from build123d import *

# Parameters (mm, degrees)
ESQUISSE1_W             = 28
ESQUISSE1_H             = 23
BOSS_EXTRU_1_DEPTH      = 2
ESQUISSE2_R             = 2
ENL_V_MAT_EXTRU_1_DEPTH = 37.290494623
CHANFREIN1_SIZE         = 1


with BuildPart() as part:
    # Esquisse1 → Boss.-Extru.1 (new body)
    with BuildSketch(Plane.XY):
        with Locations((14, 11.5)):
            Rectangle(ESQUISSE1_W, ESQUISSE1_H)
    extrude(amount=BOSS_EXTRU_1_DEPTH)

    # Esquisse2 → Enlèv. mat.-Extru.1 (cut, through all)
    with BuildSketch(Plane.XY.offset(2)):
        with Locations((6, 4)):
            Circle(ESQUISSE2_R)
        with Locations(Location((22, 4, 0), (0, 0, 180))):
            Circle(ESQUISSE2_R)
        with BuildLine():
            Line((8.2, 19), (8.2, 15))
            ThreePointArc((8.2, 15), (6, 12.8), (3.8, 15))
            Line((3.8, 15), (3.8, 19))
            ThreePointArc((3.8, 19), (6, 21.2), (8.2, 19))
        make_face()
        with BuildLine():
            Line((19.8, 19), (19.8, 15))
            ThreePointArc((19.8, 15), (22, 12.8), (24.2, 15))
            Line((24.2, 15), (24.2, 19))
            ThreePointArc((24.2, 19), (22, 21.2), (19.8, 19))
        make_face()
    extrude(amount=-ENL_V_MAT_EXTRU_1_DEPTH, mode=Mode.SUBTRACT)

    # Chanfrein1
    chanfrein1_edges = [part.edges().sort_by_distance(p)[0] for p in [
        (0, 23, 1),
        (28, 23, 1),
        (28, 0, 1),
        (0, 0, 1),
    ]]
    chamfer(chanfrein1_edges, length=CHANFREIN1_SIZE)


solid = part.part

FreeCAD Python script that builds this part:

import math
import FreeCAD as App
import Part
import Sketcher


def edges_at(feature, points):
    """Names of the edges that pass closest to the given points."""
    edges = feature.Shape.Edges
    near = lambda p: min(range(len(edges)), key=lambda i: edges[i].distToShape(Part.Vertex(*p))[0])
    return sorted({f"Edge{near(p) + 1}" for p in points})


def add_polygon(sketch, points):
    """Adds a closed chain of lines whose ends are joined by coincident constraints."""
    first, n = sketch.GeometryCount, len(points)
    for a, b in zip(points, points[1:] + points[:1]):
        sketch.addGeometry(Part.LineSegment(App.Vector(*a, 0), App.Vector(*b, 0)), False)
    for i in range(n):
        sketch.addConstraint(Sketcher.Constraint("Coincident", first + i, 2, first + (i + 1) % n, 1))

doc = App.newDocument("Part")
body = doc.addObject("PartDesign::Body", "Body")

sketch1 = body.newObject("Sketcher::SketchObject", "Sketch")
sketch1.AttachmentSupport = (doc.getObject("XY_Plane"), [""])
sketch1.MapMode = "FlatFace"
add_polygon(sketch1, [(0, 23), (0, 0), (28, 0), (28, 23)])
sketch1.addConstraint(Sketcher.Constraint("Vertical", 0))
sketch1.addConstraint(Sketcher.Constraint("Horizontal", 1))
sketch1.addConstraint(Sketcher.Constraint("Vertical", 2))
sketch1.addConstraint(Sketcher.Constraint("Horizontal", 3))
sketch1.addConstraint(Sketcher.Constraint("Coincident", 0, 2, -1, 1))
sketch1.addConstraint(Sketcher.Constraint("DistanceX", 1, 1, 1, 2, 28.0))
sketch1.addConstraint(Sketcher.Constraint("DistanceY", 0, 2, 0, 1, 23.0))
pad1 = body.newObject("PartDesign::Pad", "Pad")
pad1.Profile = sketch1
pad1.Length = 2

sketch2 = body.newObject("Sketcher::SketchObject", "Sketch001")
sketch2.AttachmentSupport = (doc.getObject("XY_Plane"), [""])
sketch2.MapMode = "FlatFace"
sketch2.AttachmentOffset = App.Placement(App.Vector(0, 0, 2), App.Rotation())
sketch2.addGeometry(Part.Circle(App.Vector(6, 4, 0), App.Vector(0, 0, 1), 2), False)
sketch2.addGeometry(Part.Circle(App.Vector(22, 4, 0), App.Vector(0, 0, 1), 2), False)
sketch2.addGeometry(Part.LineSegment(App.Vector(8.2, 15, 0), App.Vector(8.2, 19, 0)), False)
sketch2.addGeometry(Part.ArcOfCircle(Part.Circle(App.Vector(6, 19, 0), App.Vector(0, 0, 1), 2.2), math.radians(0), math.radians(180)), False)
sketch2.addGeometry(Part.LineSegment(App.Vector(3.8, 19, 0), App.Vector(3.8, 15, 0)), False)
sketch2.addGeometry(Part.ArcOfCircle(Part.Circle(App.Vector(6, 15, 0), App.Vector(0, 0, 1), 2.2), math.radians(180), math.radians(360)), False)
sketch2.addGeometry(Part.LineSegment(App.Vector(19.8, 19, 0), App.Vector(19.8, 15, 0)), False)
sketch2.addGeometry(Part.ArcOfCircle(Part.Circle(App.Vector(22, 15, 0), App.Vector(0, 0, 1), 2.2), math.radians(180), math.radians(360)), False)
sketch2.addGeometry(Part.LineSegment(App.Vector(24.2, 15, 0), App.Vector(24.2, 19, 0)), False)
sketch2.addGeometry(Part.ArcOfCircle(Part.Circle(App.Vector(22, 19, 0), App.Vector(0, 0, 1), 2.2), math.radians(0), math.radians(180)), False)
sketch2.addConstraint(Sketcher.Constraint("Tangent", 2, 2, 3, 1))
sketch2.addConstraint(Sketcher.Constraint("Tangent", 3, 2, 4, 1))
sketch2.addConstraint(Sketcher.Constraint("Tangent", 4, 2, 5, 1))
sketch2.addConstraint(Sketcher.Constraint("Tangent", 5, 2, 2, 1))
sketch2.addConstraint(Sketcher.Constraint("Tangent", 6, 2, 7, 1))
sketch2.addConstraint(Sketcher.Constraint("Tangent", 7, 2, 8, 1))
sketch2.addConstraint(Sketcher.Constraint("Tangent", 8, 2, 9, 1))
sketch2.addConstraint(Sketcher.Constraint("Tangent", 9, 2, 6, 1))
sketch2.addConstraint(Sketcher.Constraint("Vertical", 2))
sketch2.addConstraint(Sketcher.Constraint("Vertical", 4))
sketch2.addConstraint(Sketcher.Constraint("Vertical", 6))
sketch2.addConstraint(Sketcher.Constraint("Vertical", 8))
sketch2.addConstraint(Sketcher.Constraint("Equal", 0, 1))
sketch2.addConstraint(Sketcher.Constraint("Equal", 5, 7))
sketch2.addConstraint(Sketcher.Constraint("Horizontal", 0, 3, 1, 3))
sketch2.addConstraint(Sketcher.Constraint("Horizontal", 5, 3, 7, 3))
sketch2.addConstraint(Sketcher.Constraint("Horizontal", 3, 3, 9, 3))
sketch2.addConstraint(Sketcher.Constraint("Vertical", 0, 3, 3, 3))
sketch2.addConstraint(Sketcher.Constraint("Vertical", 1, 3, 7, 3))
sketch2.addConstraint(Sketcher.Constraint("Diameter", 0, 4.0))
sketch2.addConstraint(Sketcher.Constraint("Radius", 3, 2.2))
sketch2.addConstraint(Sketcher.Constraint("DistanceY", 2, 1, 2, 2, 4.0))
sketch2.addConstraint(Sketcher.Constraint("DistanceX", -1, 1, 0, 3, 6.0))
sketch2.addConstraint(Sketcher.Constraint("DistanceY", -1, 1, 0, 3, 4.0))
sketch2.addConstraint(Sketcher.Constraint("DistanceX", -1, 1, 1, 3, 22.0))
sketch2.addConstraint(Sketcher.Constraint("DistanceY", -1, 1, 3, 3, 19.0))
pocket1 = body.newObject("PartDesign::Pocket", "Pocket")
pocket1.Profile = sketch2
pocket1.Type = "ThroughAll"
doc.recompute()

chamfer = body.newObject("PartDesign::Chamfer", "Chamfer")
chamfer.Base = (pocket1, edges_at(pocket1, [
    (0, 23, 1),
    (28, 23, 1),
    (28, 0, 1),
    (0, 0, 1),
]))
chamfer.Size = 1

doc.recompute()
